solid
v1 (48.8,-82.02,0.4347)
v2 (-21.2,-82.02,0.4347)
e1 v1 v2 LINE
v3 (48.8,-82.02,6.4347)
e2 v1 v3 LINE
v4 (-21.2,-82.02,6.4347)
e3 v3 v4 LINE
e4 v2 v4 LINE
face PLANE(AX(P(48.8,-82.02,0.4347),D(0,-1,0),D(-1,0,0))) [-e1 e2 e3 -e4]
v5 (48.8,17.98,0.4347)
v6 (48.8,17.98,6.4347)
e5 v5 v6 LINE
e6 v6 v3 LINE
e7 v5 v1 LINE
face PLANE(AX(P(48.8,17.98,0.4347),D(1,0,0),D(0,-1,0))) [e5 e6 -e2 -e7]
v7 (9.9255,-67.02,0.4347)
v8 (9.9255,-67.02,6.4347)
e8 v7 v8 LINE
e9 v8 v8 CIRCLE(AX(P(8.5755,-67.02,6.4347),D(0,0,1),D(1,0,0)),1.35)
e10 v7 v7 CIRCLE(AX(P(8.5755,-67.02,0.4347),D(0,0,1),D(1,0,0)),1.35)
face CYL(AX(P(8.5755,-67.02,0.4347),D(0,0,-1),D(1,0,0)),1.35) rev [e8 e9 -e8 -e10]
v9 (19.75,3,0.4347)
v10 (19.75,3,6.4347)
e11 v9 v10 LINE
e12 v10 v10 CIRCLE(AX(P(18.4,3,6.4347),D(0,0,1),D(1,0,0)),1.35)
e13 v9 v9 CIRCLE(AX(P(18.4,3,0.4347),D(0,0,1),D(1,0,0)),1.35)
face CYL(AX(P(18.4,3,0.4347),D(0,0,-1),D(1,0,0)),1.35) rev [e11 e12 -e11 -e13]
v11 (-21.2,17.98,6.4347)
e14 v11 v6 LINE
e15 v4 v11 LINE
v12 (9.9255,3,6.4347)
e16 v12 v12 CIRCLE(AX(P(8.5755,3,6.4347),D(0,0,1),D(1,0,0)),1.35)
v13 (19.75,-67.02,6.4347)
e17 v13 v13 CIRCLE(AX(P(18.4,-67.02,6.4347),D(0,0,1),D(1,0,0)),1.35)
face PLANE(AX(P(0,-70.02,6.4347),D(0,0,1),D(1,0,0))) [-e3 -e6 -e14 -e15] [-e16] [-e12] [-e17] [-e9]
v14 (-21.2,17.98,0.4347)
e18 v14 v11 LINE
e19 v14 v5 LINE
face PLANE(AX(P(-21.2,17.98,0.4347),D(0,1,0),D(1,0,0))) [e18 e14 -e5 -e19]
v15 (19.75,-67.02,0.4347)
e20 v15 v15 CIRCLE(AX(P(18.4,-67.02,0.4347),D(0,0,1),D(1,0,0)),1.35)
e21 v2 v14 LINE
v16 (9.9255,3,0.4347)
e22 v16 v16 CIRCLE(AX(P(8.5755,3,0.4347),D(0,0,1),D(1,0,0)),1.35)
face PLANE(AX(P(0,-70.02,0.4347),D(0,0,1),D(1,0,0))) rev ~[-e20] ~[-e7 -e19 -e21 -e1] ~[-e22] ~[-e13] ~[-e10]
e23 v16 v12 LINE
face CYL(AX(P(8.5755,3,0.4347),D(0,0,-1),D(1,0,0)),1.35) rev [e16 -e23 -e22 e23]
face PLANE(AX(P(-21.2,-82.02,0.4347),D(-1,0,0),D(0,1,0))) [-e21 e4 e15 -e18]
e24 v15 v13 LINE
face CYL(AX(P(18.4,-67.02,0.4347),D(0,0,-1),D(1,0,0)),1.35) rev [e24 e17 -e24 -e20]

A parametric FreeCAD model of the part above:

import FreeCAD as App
import Part
import Sketcher
Q = App.Units.Quantity


def add_polygon(sketch, points):
    """Adds a closed chain of lines whose ends are joined by coincident constraints."""
    first, n = sketch.GeometryCount, len(points)
    for a, b in zip(points, points[1:] + points[:1]):
        sketch.addGeometry(Part.LineSegment(App.Vector(*a, 0), App.Vector(*b, 0)), False)
    for i in range(n):
        sketch.addConstraint(Sketcher.Constraint("Coincident", first + i, 2, first + (i + 1) % n, 1))

doc = App.newDocument("Part")
params = doc.addObject("Spreadsheet::Sheet", "Params")
for row, (alias, value) in enumerate([
    ("sketch1_width", "70 mm"),
    ("sketch1_height", "100 mm"),
    ("sketch1_diameter", "2.7 mm"),
    ("pad1_length", "6 mm"),
], start=1):
    params.set(f"A{row}", alias)
    params.set(f"B{row}", "=" + value)
    params.setAlias(f"B{row}", alias)

body = doc.addObject("PartDesign::Body", "Body")

sketch1 = body.newObject("Sketcher::SketchObject", "Sketch")
sketch1.AttachmentSupport = (doc.getObject("XY_Plane"), [""])
sketch1.MapMode = "FlatFace"
sketch1.AttachmentOffset = App.Placement(App.Vector(0, 0, 0.4347), App.Rotation())
add_polygon(sketch1, [(-21.2, 18), (-21.2, -82), (48.8, -82), (48.8, 18)])
sketch1.addGeometry(Part.Circle(App.Vector(8.6, -67, 0), App.Vector(0, 0, 1), 1.4), False)
sketch1.addGeometry(Part.Circle(App.Vector(18.4, -67, 0), App.Vector(0, 0, 1), 1.4), False)
sketch1.addGeometry(Part.Circle(App.Vector(18.4, 3, 0), App.Vector(0, 0, 1), 1.4), False)
sketch1.addGeometry(Part.Circle(App.Vector(8.6, 3, 0), App.Vector(0, 0, 1), 1.4), False)
sketch1.addConstraint(Sketcher.Constraint("Vertical", 0))
sketch1.addConstraint(Sketcher.Constraint("Horizontal", 1))
sketch1.addConstraint(Sketcher.Constraint("Vertical", 2))
sketch1.addConstraint(Sketcher.Constraint("Horizontal", 3))
sketch1.addConstraint(Sketcher.Constraint("Equal", 4, 5))
sketch1.addConstraint(Sketcher.Constraint("Equal", 5, 6))
sketch1.addConstraint(Sketcher.Constraint("Equal", 6, 7))
sketch1.addConstraint(Sketcher.Constraint("Horizontal", 4, 3, 5, 3))
sketch1.addConstraint(Sketcher.Constraint("Horizontal", 6, 3, 7, 3))
sketch1.addConstraint(Sketcher.Constraint("Vertical", 5, 3, 6, 3))
sketch1.addConstraint(Sketcher.Constraint("Vertical", 4, 3, 7, 3))
sketch1.addConstraint(Sketcher.Constraint("DistanceX", 1, 1, 1, 2, Q("70 mm")))
sketch1.addConstraint(Sketcher.Constraint("DistanceY", 0, 2, 0, 1, Q("100 mm")))
sketch1.addConstraint(Sketcher.Constraint("Diameter", 4, Q("2.7 mm")))
sketch1.addConstraint(Sketcher.Constraint("DistanceY", -1, 1, 6, 3, Q("3 mm")))
sketch1.addConstraint(Sketcher.Constraint("DistanceY", 0, 2, 4, 3, Q("15 mm")))
sketch1.addConstraint(Sketcher.Constraint("DistanceX", -1, 1, 5, 3, Q("18.4 mm")))
sketch1.addConstraint(Sketcher.Constraint("DistanceX", 0, 2, -1, 1, Q("21.2 mm")))
sketch1.addConstraint(Sketcher.Constraint("DistanceY", 4, 3, -1, 1, Q("67.02 mm")))
sketch1.addConstraint(Sketcher.Constraint("DistanceX", -1, 1, 4, 3, Q("8.5755 mm")))
sketch1.setExpression("Constraints[15]", "Params.sketch1_width")
sketch1.setExpression("Constraints[16]", "Params.sketch1_height")
sketch1.setExpression("Constraints[17]", "Params.sketch1_diameter")
pad1 = body.newObject("PartDesign::Pad", "Pad")
pad1.Profile = sketch1
pad1.setExpression("Length", "Params.pad1_length")

doc.recompute()
